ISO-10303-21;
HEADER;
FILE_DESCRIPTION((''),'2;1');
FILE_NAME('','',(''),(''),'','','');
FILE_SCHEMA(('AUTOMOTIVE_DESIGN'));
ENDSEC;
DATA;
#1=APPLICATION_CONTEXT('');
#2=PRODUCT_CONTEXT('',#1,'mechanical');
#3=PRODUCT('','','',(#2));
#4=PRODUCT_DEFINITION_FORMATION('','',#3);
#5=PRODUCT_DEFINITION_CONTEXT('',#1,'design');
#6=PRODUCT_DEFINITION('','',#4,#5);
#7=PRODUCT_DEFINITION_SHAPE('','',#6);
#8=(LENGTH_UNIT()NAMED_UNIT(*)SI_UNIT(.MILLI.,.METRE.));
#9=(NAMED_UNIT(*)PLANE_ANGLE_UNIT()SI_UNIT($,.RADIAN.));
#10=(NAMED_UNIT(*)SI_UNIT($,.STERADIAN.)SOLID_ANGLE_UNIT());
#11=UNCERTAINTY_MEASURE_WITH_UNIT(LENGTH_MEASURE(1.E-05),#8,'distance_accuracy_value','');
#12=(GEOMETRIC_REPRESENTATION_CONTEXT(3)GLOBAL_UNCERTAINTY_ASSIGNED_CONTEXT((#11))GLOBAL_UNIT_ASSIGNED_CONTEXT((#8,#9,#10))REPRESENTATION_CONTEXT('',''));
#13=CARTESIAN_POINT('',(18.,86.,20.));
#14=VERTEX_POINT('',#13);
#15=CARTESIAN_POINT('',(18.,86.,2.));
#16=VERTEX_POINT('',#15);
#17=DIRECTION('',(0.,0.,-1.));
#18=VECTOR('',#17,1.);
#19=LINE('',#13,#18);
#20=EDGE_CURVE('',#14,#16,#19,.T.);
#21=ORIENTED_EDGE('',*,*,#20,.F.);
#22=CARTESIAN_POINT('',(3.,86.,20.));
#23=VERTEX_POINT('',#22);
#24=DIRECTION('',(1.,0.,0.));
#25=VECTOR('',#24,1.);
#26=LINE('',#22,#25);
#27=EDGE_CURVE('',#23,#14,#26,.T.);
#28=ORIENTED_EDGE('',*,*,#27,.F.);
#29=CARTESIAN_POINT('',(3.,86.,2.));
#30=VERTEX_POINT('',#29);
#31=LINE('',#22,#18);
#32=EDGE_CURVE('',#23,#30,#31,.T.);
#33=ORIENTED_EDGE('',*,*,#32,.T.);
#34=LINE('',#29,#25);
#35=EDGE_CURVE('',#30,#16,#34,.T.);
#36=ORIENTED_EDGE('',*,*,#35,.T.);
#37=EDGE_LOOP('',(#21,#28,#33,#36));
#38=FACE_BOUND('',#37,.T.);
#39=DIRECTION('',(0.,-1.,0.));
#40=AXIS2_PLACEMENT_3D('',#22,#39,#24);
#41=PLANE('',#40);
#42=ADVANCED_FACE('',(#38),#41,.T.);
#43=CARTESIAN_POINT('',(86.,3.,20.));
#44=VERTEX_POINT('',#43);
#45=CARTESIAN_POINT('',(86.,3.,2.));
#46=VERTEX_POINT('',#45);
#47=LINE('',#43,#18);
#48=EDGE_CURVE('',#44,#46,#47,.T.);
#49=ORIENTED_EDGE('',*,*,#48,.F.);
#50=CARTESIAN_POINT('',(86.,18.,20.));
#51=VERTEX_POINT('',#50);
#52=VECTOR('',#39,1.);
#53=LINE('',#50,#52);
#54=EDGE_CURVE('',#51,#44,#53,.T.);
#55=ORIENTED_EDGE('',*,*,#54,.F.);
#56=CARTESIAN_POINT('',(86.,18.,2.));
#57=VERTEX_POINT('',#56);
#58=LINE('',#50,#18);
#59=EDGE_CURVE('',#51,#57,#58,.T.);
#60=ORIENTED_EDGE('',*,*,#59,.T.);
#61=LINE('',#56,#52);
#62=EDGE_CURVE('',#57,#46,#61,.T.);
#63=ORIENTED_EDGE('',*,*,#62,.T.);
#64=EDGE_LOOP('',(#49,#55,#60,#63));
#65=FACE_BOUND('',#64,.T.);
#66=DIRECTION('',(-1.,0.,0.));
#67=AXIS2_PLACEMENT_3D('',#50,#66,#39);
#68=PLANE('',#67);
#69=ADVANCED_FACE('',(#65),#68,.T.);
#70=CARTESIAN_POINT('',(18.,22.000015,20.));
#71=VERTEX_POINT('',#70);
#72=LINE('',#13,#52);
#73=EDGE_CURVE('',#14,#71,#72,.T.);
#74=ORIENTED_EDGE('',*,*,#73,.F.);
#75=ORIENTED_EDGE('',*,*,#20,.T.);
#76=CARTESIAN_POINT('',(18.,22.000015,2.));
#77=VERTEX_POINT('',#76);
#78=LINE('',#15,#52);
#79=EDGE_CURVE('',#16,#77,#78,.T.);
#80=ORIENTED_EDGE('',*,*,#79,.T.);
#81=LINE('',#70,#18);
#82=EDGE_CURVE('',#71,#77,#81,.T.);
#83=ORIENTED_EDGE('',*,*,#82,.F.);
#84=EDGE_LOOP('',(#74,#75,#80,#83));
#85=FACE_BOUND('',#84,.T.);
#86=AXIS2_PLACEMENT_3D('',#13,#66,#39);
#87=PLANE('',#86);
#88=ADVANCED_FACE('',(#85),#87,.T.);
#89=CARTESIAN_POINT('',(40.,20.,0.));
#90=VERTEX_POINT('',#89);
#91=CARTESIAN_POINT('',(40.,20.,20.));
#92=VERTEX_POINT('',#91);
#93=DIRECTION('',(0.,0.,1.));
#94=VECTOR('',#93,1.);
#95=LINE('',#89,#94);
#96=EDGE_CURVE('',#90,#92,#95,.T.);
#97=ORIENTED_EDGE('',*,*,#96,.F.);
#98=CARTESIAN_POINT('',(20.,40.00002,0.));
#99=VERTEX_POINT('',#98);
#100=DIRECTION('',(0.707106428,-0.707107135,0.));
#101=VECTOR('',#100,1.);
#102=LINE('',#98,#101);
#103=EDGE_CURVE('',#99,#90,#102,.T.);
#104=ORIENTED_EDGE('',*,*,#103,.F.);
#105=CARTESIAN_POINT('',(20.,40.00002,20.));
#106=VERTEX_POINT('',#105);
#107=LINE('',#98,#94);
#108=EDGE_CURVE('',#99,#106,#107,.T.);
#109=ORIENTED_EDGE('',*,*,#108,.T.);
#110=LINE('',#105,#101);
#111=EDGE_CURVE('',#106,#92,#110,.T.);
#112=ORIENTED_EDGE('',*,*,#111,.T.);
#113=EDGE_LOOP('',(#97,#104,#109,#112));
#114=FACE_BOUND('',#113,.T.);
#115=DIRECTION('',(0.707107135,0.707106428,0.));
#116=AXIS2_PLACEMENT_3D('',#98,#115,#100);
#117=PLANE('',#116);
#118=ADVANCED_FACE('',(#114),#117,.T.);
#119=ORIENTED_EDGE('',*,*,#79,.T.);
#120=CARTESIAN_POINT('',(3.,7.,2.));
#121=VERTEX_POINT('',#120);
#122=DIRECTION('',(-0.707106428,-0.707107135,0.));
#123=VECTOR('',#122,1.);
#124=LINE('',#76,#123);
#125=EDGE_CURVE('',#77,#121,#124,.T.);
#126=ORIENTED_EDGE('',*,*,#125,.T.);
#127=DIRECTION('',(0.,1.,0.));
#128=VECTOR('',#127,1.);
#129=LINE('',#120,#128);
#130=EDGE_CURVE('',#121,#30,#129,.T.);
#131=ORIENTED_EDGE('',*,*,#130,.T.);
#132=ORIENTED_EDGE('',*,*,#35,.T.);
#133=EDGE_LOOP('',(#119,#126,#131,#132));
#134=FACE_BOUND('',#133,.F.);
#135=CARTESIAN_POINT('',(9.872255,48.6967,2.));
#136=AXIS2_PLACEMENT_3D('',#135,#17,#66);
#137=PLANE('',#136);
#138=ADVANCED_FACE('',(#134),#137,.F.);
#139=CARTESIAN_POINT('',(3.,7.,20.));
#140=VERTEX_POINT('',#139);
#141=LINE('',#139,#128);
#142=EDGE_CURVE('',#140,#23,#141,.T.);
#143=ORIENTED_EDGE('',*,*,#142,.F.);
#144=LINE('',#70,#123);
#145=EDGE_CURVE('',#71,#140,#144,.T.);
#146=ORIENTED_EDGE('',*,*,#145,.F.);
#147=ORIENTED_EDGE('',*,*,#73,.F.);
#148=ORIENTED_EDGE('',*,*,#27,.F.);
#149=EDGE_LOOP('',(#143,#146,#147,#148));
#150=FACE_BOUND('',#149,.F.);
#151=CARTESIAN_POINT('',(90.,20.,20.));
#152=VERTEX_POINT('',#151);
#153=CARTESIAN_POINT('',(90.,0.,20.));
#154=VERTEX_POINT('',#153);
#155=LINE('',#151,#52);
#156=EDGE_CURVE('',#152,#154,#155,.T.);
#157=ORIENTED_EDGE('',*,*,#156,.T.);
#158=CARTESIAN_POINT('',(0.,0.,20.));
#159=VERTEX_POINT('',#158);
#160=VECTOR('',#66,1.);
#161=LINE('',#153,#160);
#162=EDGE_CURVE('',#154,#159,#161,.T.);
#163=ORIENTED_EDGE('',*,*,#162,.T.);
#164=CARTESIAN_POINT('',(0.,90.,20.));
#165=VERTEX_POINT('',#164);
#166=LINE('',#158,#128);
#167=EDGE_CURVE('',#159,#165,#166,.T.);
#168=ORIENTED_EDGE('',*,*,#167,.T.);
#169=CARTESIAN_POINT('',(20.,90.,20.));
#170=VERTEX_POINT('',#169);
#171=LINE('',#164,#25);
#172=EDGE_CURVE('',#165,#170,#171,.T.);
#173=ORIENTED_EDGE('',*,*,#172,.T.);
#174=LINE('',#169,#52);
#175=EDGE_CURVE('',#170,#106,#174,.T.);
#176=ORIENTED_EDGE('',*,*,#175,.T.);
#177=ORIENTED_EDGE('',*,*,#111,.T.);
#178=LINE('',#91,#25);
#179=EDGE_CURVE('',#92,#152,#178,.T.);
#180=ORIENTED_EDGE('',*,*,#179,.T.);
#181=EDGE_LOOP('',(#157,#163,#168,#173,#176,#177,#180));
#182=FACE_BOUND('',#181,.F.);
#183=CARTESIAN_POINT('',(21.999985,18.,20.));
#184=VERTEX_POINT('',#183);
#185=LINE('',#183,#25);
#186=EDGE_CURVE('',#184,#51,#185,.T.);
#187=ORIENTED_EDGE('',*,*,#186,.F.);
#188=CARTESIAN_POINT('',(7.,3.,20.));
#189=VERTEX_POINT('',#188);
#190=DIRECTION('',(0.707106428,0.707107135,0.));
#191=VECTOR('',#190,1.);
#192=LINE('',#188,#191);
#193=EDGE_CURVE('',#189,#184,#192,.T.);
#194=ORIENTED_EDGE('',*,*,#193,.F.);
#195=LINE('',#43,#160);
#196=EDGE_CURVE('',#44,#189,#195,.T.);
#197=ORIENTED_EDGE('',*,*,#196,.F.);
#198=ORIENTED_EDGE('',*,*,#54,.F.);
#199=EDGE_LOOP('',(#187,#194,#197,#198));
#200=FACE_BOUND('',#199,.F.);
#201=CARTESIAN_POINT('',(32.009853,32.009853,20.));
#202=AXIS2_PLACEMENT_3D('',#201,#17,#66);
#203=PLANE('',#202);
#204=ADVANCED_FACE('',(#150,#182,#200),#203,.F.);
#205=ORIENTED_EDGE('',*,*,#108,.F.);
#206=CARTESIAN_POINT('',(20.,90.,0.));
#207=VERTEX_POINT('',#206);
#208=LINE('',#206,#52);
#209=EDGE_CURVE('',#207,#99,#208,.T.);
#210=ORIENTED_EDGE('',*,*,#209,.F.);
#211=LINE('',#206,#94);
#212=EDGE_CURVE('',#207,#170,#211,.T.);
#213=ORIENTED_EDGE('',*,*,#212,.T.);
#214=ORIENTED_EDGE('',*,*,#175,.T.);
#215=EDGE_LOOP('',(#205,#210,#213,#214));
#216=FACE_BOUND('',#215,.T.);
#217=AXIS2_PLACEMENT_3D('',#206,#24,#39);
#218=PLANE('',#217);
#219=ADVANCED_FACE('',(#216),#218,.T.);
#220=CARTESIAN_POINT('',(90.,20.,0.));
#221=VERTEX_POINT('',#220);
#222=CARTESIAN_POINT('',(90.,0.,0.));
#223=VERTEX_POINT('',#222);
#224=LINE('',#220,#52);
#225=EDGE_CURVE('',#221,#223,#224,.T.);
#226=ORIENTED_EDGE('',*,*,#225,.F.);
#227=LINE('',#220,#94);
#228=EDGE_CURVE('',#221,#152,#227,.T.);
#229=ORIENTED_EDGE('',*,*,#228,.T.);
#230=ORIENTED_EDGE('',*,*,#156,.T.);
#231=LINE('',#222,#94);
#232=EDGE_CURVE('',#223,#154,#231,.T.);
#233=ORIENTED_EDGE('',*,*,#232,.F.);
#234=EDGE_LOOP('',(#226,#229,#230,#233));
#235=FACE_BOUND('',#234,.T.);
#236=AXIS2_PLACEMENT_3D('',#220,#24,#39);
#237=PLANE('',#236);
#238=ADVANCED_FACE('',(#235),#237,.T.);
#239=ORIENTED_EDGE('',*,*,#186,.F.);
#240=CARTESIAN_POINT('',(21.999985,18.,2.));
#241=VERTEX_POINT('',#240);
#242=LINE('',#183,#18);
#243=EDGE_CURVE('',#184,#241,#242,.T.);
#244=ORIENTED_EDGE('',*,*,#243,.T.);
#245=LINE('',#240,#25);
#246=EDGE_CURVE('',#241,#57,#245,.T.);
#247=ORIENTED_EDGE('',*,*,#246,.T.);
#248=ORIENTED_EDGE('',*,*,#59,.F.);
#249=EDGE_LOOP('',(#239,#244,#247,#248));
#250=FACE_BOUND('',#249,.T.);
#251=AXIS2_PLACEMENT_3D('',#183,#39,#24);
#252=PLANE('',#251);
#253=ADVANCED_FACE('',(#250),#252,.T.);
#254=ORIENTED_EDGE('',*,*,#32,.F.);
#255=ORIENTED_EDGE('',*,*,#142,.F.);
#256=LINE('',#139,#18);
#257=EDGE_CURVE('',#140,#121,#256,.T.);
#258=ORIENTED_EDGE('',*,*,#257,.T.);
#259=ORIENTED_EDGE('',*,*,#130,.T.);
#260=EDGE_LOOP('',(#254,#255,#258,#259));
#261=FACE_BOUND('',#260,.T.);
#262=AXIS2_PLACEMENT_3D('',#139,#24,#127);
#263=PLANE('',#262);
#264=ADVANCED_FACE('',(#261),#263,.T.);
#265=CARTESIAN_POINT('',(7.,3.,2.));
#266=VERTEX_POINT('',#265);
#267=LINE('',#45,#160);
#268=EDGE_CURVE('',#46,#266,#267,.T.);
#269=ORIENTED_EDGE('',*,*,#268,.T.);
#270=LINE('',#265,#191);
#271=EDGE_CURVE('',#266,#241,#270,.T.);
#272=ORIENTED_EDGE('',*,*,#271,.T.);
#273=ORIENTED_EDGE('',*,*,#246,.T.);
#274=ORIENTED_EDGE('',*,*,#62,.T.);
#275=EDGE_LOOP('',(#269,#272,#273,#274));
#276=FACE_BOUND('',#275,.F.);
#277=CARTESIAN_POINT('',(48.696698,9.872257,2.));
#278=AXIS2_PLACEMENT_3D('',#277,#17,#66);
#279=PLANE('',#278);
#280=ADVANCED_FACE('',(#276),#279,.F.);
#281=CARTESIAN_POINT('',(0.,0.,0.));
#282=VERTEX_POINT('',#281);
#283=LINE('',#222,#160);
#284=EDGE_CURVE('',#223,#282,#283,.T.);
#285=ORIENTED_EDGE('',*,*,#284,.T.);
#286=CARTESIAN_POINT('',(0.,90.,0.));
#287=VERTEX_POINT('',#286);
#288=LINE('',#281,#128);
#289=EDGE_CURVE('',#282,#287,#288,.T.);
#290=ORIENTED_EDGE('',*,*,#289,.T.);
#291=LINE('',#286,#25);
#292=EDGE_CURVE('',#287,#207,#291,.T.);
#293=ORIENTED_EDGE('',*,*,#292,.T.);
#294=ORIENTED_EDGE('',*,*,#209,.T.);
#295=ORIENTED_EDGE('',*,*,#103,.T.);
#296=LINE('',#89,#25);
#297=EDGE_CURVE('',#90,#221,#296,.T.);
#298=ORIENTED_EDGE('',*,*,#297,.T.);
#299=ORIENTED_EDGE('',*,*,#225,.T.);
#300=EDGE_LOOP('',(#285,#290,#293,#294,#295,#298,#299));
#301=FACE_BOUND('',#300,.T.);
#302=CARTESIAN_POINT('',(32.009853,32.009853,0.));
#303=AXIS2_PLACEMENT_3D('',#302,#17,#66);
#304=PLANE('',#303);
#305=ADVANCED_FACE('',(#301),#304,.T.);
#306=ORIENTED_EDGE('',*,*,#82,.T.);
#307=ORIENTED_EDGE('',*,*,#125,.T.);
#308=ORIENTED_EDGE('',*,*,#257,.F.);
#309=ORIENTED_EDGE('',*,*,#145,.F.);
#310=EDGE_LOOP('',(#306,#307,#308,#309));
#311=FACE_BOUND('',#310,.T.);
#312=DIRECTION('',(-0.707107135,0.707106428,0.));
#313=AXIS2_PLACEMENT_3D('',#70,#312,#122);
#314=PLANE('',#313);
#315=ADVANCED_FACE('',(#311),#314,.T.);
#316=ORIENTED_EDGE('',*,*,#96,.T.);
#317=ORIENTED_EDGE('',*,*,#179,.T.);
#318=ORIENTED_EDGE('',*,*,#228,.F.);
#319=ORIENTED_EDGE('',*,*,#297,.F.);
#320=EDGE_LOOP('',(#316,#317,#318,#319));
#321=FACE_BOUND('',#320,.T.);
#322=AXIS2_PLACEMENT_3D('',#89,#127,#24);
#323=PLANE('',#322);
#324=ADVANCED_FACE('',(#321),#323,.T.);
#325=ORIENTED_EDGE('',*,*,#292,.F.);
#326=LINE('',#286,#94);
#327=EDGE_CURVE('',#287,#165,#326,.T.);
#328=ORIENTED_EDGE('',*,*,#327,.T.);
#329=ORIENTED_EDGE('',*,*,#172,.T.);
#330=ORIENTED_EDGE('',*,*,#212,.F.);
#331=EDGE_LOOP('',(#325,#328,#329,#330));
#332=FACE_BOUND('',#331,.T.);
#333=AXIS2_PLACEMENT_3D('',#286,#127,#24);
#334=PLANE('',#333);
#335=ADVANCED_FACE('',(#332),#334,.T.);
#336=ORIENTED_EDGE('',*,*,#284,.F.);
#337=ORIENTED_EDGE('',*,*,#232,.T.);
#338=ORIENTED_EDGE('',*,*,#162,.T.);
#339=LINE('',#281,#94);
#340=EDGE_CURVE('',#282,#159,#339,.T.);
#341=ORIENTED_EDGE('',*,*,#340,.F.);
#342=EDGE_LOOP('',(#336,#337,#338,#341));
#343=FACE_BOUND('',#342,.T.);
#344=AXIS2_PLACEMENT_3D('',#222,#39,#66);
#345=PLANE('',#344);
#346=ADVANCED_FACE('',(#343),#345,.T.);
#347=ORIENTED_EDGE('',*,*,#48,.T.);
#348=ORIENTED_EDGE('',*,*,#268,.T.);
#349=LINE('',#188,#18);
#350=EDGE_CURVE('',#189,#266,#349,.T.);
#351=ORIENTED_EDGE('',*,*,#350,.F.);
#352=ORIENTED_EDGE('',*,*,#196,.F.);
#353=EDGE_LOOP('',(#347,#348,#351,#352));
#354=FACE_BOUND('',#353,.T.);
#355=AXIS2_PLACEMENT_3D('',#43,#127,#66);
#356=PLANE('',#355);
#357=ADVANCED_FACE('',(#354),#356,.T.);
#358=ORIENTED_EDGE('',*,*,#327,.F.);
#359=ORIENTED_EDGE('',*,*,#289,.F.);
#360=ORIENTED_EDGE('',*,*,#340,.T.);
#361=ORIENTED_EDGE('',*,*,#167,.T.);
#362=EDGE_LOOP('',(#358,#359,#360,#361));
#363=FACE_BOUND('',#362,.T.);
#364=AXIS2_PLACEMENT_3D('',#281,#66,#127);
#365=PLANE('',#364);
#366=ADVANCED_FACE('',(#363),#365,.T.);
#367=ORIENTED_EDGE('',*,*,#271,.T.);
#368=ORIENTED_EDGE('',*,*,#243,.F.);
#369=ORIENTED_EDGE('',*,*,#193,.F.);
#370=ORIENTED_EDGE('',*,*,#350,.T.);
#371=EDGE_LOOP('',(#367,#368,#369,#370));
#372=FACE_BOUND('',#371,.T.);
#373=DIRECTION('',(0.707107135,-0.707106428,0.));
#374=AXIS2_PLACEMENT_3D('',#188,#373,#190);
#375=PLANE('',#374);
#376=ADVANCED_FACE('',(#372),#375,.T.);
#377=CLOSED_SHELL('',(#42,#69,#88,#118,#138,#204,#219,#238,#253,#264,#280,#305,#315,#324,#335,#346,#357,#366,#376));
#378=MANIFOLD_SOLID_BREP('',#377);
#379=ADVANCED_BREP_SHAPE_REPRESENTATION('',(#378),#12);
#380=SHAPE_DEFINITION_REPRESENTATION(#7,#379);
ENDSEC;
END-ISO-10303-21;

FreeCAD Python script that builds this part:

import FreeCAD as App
import Part
import Sketcher

doc = App.newDocument("Part")
body = doc.addObject("PartDesign::Body", "Body")

sketch1 = body.newObject("Sketcher::SketchObject", "Sketch")
sketch1.AttachmentSupport = (doc.getObject("XY_Plane"), [""])
sketch1.MapMode = "FlatFace"
sketch1.addGeometry([
    Part.LineSegment(App.Vector(0, 90, 0), App.Vector(0, 0, 0)),
    Part.LineSegment(App.Vector(0, 0, 0), App.Vector(90, 0, 0)),
    Part.LineSegment(App.Vector(90, 0, 0), App.Vector(90, 20, 0)),
    Part.LineSegment(App.Vector(90, 20, 0), App.Vector(40, 20, 0)),
    Part.LineSegment(App.Vector(40, 20, 0), App.Vector(20, 40, 0)),
    Part.LineSegment(App.Vector(20, 40, 0), App.Vector(20, 90, 0)),
    Part.LineSegment(App.Vector(20, 90, 0), App.Vector(0, 90, 0)),
], False)
sketch1.addConstraint([
    Sketcher.Constraint("Coincident", 0, 2, 1, 1),
    Sketcher.Constraint("Coincident", 1, 2, 2, 1),
    Sketcher.Constraint("Coincident", 2, 2, 3, 1),
    Sketcher.Constraint("Coincident", 3, 2, 4, 1),
    Sketcher.Constraint("Coincident", 4, 2, 5, 1),
    Sketcher.Constraint("Coincident", 5, 2, 6, 1),
    Sketcher.Constraint("Coincident", 6, 2, 0, 1),
    Sketcher.Constraint("Vertical", 0),
    Sketcher.Constraint("Horizontal", 1),
    Sketcher.Constraint("Vertical", 2),
    Sketcher.Constraint("Horizontal", 3),
    Sketcher.Constraint("Vertical", 5),
    Sketcher.Constraint("Horizontal", 6),
    Sketcher.Constraint("Coincident", 0, 2, -1, 1),
    Sketcher.Constraint("Equal", 1, 0),
    Sketcher.Constraint("Equal", 6, 2),
    Sketcher.Constraint("DistanceX", 1, 1, 1, 2, 90.0),
    Sketcher.Constraint("DistanceX", 3, 2, 3, 1, 50.0),
    Sketcher.Constraint("DistanceX", 6, 2, 6, 1, 20.0),
    Sketcher.Constraint("DistanceY", 5, 1, 5, 2, 49.99998),
])
pad1 = body.newObject("PartDesign::Pad", "Pad")
pad1.Profile = sketch1
pad1.Length = 20

sketch2 = body.newObject("Sketcher::SketchObject", "Sketch001")
sketch2.AttachmentSupport = (doc.getObject("XY_Plane"), [""])
sketch2.MapMode = "FlatFace"
sketch2.AttachmentOffset = App.Placement(App.Vector(0, 0, 20), App.Rotation())
sketch2.addGeometry([
    Part.LineSegment(App.Vector(3, 86, 0), App.Vector(3, 7, 0)),
    Part.LineSegment(App.Vector(3, 7, 0), App.Vector(18, 22, 0)),
    Part.LineSegment(App.Vector(18, 22, 0), App.Vector(18, 86, 0)),
    Part.LineSegment(App.Vector(18, 86, 0), App.Vector(3, 86, 0)),
    Part.LineSegment(App.Vector(86, 18, 0), App.Vector(22, 18, 0)),
    Part.LineSegment(App.Vector(22, 18, 0), App.Vector(7, 3, 0)),
    Part.LineSegment(App.Vector(7, 3, 0), App.Vector(86, 3, 0)),
    Part.LineSegment(App.Vector(86, 3, 0), App.Vector(86, 18, 0)),
], False)
sketch2.addConstraint([
    Sketcher.Constraint("Coincident", 0, 2, 1, 1),
    Sketcher.Constraint("Coincident", 1, 2, 2, 1),
    Sketcher.Constraint("Coincident", 2, 2, 3, 1),
    Sketcher.Constraint("Coincident", 3, 2, 0, 1),
    Sketcher.Constraint("Coincident", 4, 2, 5, 1),
    Sketcher.Constraint("Coincident", 5, 2, 6, 1),
    Sketcher.Constraint("Coincident", 6, 2, 7, 1),
    Sketcher.Constraint("Coincident", 7, 2, 4, 1),
    Sketcher.Constraint("Vertical", 0),
    Sketcher.Constraint("Vertical", 2),
    Sketcher.Constraint("Horizontal", 3),
    Sketcher.Constraint("Horizontal", 4),
    Sketcher.Constraint("Horizontal", 6),
    Sketcher.Constraint("Vertical", 7),
    Sketcher.Constraint("Parallel", 1, 5),
    Sketcher.Constraint("Equal", 6, 0),
    Sketcher.Constraint("Equal", 3, 7),
    Sketcher.Constraint("DistanceX", 3, 2, 3, 1, 15.0),
    Sketcher.Constraint("DistanceX", 6, 1, 6, 2, 79.0),
    Sketcher.Constraint("DistanceX", -1, 1, 0, 2, 3.0),
    Sketcher.Constraint("DistanceY", -1, 1, 0, 2, 7.0),
    Sketcher.Constraint("DistanceY", -1, 1, 4, 2, 18.0),
    Sketcher.Constraint("DistanceX", -1, 1, 5, 2, 7.0),
    Sketcher.Constraint("DistanceX", 4, 2, 4, 1, 64.000015),
])
pocket1 = body.newObject("PartDesign::Pocket", "Pocket")
pocket1.Profile = sketch2
pocket1.Length = 18

doc.recompute()
